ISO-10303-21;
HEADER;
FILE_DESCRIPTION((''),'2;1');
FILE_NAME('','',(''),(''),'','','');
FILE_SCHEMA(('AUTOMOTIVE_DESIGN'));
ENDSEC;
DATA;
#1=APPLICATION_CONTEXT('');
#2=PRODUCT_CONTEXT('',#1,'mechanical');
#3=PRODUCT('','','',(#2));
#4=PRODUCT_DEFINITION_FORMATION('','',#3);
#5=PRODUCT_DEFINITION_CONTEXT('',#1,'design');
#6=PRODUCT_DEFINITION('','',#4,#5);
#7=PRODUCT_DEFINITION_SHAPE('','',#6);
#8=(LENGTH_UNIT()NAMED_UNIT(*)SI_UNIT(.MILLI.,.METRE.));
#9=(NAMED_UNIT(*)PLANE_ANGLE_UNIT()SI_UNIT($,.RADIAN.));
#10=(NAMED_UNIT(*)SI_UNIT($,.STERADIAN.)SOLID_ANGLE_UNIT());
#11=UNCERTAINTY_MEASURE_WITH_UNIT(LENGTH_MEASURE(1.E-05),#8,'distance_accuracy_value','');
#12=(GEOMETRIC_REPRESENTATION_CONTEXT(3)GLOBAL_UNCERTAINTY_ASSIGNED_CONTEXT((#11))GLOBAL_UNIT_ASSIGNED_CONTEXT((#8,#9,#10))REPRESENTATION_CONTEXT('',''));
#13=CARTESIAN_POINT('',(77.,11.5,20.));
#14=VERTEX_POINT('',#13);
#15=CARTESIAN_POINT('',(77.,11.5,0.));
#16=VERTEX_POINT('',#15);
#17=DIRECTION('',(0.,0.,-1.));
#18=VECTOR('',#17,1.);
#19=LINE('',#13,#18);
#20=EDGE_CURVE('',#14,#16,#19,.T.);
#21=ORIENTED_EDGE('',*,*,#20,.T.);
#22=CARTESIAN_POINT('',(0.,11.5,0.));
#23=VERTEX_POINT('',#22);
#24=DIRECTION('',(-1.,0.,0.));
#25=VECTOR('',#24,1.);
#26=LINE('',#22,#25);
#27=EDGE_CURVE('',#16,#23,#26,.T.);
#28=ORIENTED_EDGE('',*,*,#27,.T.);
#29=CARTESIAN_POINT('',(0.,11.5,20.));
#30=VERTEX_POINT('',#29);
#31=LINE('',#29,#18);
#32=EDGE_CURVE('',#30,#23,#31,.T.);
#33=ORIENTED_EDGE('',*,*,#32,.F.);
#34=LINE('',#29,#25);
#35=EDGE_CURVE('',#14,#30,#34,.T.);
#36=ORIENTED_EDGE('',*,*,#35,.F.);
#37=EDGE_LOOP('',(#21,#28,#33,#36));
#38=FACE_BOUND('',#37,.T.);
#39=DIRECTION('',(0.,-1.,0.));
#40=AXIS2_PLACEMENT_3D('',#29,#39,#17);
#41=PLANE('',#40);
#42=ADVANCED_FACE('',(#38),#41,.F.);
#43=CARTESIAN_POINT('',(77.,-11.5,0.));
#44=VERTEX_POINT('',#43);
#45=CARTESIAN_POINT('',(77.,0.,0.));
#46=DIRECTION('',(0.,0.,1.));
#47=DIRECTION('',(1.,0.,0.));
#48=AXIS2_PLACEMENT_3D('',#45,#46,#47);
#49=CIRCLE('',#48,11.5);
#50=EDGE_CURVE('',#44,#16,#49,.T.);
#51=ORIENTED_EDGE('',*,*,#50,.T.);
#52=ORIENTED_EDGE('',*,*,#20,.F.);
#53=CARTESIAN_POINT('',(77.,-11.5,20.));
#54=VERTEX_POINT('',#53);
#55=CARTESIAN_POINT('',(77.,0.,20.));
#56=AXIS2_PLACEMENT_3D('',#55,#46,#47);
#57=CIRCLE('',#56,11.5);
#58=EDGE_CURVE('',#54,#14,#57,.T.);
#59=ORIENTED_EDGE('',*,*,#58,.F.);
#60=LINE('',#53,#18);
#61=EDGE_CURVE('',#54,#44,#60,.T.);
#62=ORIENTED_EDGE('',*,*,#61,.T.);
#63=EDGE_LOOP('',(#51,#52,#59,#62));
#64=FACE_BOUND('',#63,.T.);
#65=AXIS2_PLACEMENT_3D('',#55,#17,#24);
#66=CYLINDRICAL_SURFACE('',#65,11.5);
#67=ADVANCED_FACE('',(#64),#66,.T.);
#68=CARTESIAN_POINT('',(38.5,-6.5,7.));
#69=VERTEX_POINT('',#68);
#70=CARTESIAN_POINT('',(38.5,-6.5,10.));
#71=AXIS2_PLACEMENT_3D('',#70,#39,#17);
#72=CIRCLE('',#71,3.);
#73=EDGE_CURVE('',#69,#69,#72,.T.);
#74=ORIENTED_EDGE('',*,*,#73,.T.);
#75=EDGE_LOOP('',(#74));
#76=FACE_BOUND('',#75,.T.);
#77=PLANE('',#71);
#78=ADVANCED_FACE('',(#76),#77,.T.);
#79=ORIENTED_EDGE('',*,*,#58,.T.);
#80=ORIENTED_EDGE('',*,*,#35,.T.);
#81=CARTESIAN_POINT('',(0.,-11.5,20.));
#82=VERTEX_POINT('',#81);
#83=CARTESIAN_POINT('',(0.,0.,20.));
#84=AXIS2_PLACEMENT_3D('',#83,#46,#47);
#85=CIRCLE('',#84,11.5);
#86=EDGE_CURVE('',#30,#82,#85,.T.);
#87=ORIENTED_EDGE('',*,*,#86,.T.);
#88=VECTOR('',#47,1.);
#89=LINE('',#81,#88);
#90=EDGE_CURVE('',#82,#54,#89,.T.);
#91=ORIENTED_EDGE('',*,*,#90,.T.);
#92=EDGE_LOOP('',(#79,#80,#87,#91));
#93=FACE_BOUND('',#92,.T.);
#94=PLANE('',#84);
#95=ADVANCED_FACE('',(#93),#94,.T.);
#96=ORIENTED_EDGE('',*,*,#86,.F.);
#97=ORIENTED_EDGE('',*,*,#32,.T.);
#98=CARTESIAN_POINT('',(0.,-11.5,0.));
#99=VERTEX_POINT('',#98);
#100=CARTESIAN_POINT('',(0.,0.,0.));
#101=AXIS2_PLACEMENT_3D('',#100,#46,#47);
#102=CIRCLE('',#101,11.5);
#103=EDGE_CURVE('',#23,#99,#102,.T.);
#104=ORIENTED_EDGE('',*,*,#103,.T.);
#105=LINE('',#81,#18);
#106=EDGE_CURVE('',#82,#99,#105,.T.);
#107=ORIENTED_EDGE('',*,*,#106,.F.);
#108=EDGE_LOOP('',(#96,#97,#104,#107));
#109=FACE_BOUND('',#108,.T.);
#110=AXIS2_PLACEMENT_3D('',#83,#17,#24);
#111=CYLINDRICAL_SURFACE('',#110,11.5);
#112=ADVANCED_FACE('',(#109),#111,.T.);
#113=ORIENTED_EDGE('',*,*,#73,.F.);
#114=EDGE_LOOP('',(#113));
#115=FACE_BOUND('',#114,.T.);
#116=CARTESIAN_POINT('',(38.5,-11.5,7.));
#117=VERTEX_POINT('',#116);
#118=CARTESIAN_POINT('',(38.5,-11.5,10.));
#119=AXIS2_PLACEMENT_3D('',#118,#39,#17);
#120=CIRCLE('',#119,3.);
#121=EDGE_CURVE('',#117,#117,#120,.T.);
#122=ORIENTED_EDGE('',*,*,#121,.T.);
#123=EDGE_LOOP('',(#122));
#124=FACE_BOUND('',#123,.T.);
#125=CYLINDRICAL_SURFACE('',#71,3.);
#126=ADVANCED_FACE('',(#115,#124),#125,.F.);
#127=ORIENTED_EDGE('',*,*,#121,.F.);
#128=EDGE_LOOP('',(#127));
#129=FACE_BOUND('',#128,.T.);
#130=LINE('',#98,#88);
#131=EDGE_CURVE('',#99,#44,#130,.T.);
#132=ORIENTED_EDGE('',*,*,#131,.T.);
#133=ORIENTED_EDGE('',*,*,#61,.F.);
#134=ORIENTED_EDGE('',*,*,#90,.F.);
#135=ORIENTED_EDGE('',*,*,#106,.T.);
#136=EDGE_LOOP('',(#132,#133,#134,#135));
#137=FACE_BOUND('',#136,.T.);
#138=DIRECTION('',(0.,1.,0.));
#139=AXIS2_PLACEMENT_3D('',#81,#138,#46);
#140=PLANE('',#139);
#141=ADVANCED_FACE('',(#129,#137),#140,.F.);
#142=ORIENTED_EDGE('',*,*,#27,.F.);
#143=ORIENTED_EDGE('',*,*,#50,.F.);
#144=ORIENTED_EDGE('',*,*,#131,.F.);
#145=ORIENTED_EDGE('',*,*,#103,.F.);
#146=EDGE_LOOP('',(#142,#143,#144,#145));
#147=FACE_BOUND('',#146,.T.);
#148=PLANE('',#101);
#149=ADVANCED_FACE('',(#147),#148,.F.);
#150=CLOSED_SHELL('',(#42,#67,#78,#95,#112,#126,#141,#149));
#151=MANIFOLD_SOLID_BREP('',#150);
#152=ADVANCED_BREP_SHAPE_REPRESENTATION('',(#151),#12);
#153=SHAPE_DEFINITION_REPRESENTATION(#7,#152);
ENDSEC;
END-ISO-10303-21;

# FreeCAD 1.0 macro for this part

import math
import FreeCAD as App
import Part
import Sketcher

doc = App.newDocument("Part")
body = doc.addObject("PartDesign::Body", "Body")

# Sketch on XY plane
sketch1 = body.newObject("Sketcher::SketchObject", "Sketch")
sketch1.AttachmentSupport = (doc.getObject("XY_Plane"), [""])
sketch1.MapMode = "FlatFace"
sketch1.addGeometry([
    Part.LineSegment(App.Vector(77, 12, 0), App.Vector(0, 12, 0)),
    Part.ArcOfCircle(Part.Circle(App.Vector(0, 0, 0), App.Vector(0, 0, 1), 12), math.radians(90), math.radians(270)),
    Part.LineSegment(App.Vector(0, -12, 0), App.Vector(77, -12, 0)),
    Part.ArcOfCircle(Part.Circle(App.Vector(77, 0, 0), App.Vector(0, 0, 1), 12), math.radians(-90), math.radians(90)),
], False)
sketch1.addConstraint([
    Sketcher.Constraint("Tangent", 0, 2, 1, 1),
    Sketcher.Constraint("Tangent", 1, 2, 2, 1),
    Sketcher.Constraint("Tangent", 2, 2, 3, 1),
    Sketcher.Constraint("Tangent", 3, 2, 0, 1),
    Sketcher.Constraint("Horizontal", 0),
    Sketcher.Constraint("Horizontal", 2),
    Sketcher.Constraint("Coincident", 1, 3, -1, 1),
    Sketcher.Constraint("Radius", 1, 11.5),
    Sketcher.Constraint("DistanceX", 0, 2, 0, 1, 77.0),
])
pad1 = body.newObject("PartDesign::Pad", "Pad")
pad1.Profile = sketch1
pad1.Length = 20

# Sketch on XZ plane
sketch2 = body.newObject("Sketcher::SketchObject", "Sketch001")
sketch2.AttachmentSupport = (doc.getObject("XZ_Plane"), [""])
sketch2.MapMode = "FlatFace"
sketch2.AttachmentOffset = App.Placement(App.Vector(0, 0, 11.5), App.Rotation())
sketch2.addGeometry(Part.Circle(App.Vector(38.5, 10, 0), App.Vector(0, 0, 1), 3), False)
sketch2.addConstraint([
    Sketcher.Constraint("Diameter", 0, 6.0),
    Sketcher.Constraint("DistanceY", -1, 1, 0, 3, 10.0),
    Sketcher.Constraint("DistanceX", -1, 1, 0, 3, 38.5),
])
pocket1 = body.newObject("PartDesign::Pocket", "Pocket")
pocket1.Profile = sketch2
pocket1.Length = 5

doc.recompute()
